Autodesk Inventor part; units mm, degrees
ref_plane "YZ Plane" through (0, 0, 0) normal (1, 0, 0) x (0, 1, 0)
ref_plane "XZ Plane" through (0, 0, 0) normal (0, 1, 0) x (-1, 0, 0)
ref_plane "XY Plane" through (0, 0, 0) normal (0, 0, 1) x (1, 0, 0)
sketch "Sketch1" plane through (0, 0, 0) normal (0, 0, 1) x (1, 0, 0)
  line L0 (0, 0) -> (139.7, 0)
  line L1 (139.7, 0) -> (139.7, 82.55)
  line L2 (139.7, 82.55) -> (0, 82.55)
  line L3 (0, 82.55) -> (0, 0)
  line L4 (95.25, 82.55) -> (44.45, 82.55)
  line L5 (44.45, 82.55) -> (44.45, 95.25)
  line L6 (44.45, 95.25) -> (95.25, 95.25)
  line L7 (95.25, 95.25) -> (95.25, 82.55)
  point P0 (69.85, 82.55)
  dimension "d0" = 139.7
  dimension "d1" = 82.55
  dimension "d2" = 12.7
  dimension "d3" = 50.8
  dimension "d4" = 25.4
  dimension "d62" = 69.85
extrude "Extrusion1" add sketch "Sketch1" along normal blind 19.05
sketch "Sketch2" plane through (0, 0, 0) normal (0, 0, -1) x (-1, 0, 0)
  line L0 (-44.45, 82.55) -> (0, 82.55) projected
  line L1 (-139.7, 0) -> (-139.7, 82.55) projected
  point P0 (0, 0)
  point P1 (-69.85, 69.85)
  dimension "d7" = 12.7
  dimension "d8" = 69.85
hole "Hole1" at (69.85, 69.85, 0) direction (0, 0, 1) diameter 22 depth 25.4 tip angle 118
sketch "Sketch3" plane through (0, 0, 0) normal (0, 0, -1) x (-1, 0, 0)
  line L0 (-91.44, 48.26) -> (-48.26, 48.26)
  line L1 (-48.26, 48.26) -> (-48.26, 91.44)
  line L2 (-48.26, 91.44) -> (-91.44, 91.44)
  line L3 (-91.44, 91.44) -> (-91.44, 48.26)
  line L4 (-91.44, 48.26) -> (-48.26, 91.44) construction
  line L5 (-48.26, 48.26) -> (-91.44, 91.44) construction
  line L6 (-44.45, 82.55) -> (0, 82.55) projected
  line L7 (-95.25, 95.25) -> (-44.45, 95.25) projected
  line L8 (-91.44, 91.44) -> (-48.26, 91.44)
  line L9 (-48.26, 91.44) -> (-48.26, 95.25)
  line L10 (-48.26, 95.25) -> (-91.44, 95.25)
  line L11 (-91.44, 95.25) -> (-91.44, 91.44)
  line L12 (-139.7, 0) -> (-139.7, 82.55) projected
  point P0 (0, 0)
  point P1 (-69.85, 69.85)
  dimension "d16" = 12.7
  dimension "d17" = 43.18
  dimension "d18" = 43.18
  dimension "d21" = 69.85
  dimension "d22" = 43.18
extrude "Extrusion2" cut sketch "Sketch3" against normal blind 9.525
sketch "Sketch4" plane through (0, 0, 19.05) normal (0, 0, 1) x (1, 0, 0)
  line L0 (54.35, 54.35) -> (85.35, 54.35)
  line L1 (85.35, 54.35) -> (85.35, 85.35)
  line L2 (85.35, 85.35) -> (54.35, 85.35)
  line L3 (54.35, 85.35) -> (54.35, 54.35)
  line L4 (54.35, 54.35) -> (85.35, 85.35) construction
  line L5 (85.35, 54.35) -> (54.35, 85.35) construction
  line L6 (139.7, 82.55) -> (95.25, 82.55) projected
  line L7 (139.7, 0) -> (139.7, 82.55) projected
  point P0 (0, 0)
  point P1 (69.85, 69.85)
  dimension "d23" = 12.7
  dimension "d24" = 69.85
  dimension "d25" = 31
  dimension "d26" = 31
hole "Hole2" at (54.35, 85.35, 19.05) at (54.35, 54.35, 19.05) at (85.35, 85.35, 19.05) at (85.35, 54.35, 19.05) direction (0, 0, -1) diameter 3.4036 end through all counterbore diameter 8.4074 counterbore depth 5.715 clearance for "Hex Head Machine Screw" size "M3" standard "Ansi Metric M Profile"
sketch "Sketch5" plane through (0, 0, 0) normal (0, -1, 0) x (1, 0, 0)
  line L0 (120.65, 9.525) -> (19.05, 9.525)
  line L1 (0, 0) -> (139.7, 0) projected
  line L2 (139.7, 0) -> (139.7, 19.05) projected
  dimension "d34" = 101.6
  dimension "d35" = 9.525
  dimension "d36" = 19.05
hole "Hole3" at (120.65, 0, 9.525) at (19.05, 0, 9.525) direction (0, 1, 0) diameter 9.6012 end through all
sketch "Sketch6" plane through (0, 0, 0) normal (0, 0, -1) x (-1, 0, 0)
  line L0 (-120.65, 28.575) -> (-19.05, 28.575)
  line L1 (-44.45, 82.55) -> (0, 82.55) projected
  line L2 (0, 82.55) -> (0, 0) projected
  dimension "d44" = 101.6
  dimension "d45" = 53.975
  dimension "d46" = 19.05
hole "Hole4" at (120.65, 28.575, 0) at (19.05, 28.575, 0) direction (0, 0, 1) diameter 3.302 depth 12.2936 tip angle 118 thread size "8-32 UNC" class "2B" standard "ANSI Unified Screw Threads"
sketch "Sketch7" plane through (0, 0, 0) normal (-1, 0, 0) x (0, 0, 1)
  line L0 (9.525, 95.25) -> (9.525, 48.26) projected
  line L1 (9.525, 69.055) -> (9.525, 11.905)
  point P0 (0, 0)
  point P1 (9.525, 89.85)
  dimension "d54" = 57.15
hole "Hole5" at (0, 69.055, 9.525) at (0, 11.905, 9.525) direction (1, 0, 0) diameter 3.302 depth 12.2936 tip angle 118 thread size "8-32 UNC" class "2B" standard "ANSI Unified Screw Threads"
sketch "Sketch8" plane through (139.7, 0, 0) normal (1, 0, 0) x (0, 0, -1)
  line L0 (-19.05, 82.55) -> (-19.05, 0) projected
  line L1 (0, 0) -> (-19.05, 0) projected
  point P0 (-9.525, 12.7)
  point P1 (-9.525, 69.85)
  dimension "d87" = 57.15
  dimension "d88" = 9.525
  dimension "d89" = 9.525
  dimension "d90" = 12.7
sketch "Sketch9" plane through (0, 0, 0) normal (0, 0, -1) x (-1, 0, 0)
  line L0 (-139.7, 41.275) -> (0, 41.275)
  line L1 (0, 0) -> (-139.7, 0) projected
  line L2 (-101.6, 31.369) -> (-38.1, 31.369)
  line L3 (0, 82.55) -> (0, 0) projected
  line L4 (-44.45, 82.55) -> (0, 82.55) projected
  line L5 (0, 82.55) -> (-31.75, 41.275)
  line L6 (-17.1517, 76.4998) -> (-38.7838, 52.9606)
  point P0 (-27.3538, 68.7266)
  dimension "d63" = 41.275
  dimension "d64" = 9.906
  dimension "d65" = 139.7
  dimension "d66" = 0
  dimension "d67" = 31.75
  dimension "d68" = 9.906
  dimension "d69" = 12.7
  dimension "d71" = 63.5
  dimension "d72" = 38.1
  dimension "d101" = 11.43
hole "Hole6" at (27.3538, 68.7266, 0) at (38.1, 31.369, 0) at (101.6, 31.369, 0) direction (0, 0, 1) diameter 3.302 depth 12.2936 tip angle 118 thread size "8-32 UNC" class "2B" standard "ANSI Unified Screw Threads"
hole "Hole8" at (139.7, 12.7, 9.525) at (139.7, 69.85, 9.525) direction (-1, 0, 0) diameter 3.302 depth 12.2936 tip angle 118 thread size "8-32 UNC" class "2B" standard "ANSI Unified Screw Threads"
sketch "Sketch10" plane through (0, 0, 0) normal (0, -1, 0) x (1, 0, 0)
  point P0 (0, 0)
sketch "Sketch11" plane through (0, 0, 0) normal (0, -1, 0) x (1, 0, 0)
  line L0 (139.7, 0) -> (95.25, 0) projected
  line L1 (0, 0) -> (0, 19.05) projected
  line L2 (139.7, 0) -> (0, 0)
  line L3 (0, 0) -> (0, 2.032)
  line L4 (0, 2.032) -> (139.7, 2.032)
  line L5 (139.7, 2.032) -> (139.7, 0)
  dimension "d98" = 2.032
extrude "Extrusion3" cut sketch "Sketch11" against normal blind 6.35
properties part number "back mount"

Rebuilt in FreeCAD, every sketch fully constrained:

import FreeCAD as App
import Part
import Sketcher

V = App.Vector
Q = App.Units.Quantity


def add_polygon(sketch, points):
    """Adds a closed chain of lines whose ends are joined by coincident constraints."""
    first, n = sketch.GeometryCount, len(points)
    for a, b in zip(points, points[1:] + points[:1]):
        sketch.addGeometry(Part.LineSegment(App.Vector(*a, 0), App.Vector(*b, 0)), False)
    for i in range(n):
        sketch.addConstraint(Sketcher.Constraint("Coincident", first + i, 2, first + (i + 1) % n, 1))

doc = App.newDocument("Part")
body = doc.addObject("PartDesign::Body", "Body")

# Sketch on XY plane
sketch1 = body.newObject("Sketcher::SketchObject", "Sketch")
sketch1.AttachmentSupport = (doc.getObject("XY_Plane"), [""])
sketch1.MapMode = "FlatFace"
add_polygon(sketch1, [(0, 82.55), (0, 0), (139.7, 0), (139.7, 82.55), (95.25, 82.55), (95.25, 95.25), (44.45, 95.25), (44.45, 82.55)])  # lines 0-7
sketch1.addConstraint([
    Sketcher.Constraint("Vertical", 0),
    Sketcher.Constraint("Horizontal", 1),
    Sketcher.Constraint("Vertical", 2),
    Sketcher.Constraint("Horizontal", 3),
    Sketcher.Constraint("Vertical", 4),
    Sketcher.Constraint("Horizontal", 5),
    Sketcher.Constraint("Vertical", 6),
    Sketcher.Constraint("Horizontal", 7),
    Sketcher.Constraint("Coincident", 0, 2, -1, 1),
    Sketcher.Constraint("Horizontal", 3, 2, 6, 2),
    Sketcher.Constraint("Equal", 3, 7),
    Sketcher.Constraint("DistanceX", 5, 2, 5, 1, Q("2 in")),
    Sketcher.Constraint("DistanceX", 1, 1, 1, 2, Q("5.5 in")),
    Sketcher.Constraint("DistanceY", 4, 1, 4, 2, Q("0.5 in")),
    Sketcher.Constraint("DistanceY", 0, 2, 0, 1, Q("3.25 in")),
])
pad1 = body.newObject("PartDesign::Pad", "Pad")
pad1.Profile = sketch1
pad1.Length = Q("0.75 in")

# Sketch on XY plane
sketch2 = body.newObject("Sketcher::SketchObject", "Sketch001")
sketch2.AttachmentSupport = (doc.getObject("XY_Plane"), [""])
sketch2.MapMode = "FlatFace"
sketch2.addGeometry(Part.Circle(V(69.85, 69.85, 0), V(0, 0, 1), 11), False)
sketch2.addConstraint([
    Sketcher.Constraint("Diameter", 0, Q("22 mm")),
    Sketcher.Constraint("DistanceX", -1, 1, 0, 3, Q("2.75 in")),
    Sketcher.Constraint("DistanceY", -1, 1, 0, 3, Q("2.75 in")),
])
doc.recompute()
hole = body.newObject("PartDesign::Hole", "Hole")
hole.Profile = sketch2
hole.ThreadType = "None"
hole.Diameter = 22
hole.DepthType = "Dimension"
hole.Depth = Q("1 in")
hole.DrillPoint = "Angled"
hole.DrillPointAngle = 118
hole.Reversed = True

# Sketch on XY plane
sketch3 = body.newObject("Sketcher::SketchObject", "Sketch002")
sketch3.AttachmentSupport = (doc.getObject("XY_Plane"), [""])
sketch3.MapMode = "FlatFace"
add_polygon(sketch3, [(91.44, 48.26), (48.26, 48.26), (48.26, 95.25), (91.44, 95.25)])  # lines 0-3
sketch3.addConstraint([
    Sketcher.Constraint("Horizontal", 0),
    Sketcher.Constraint("Vertical", 1),
    Sketcher.Constraint("Horizontal", 2),
    Sketcher.Constraint("Vertical", 3),
    Sketcher.Constraint("DistanceX", 0, 2, 0, 1, Q("1.7 in")),
    Sketcher.Constraint("DistanceY", 1, 1, 1, 2, Q("1.85 in")),
    Sketcher.Constraint("DistanceX", -1, 1, 0, 2, Q("1.9 in")),
    Sketcher.Constraint("DistanceY", -1, 1, 0, 2, Q("1.9 in")),
])
pocket1 = body.newObject("PartDesign::Pocket", "Pocket")
pocket1.Profile = sketch3
pocket1.Length = Q("0.375 in")
pocket1.Reversed = True

# Sketch on XY plane
sketch4 = body.newObject("Sketcher::SketchObject", "Sketch003")
sketch4.AttachmentSupport = (doc.getObject("XY_Plane"), [""])
sketch4.MapMode = "FlatFace"
sketch4.AttachmentOffset = App.Placement(V(0, 0, 0.75 * 25.4), App.Rotation())
sketch4.addGeometry([
    Part.Circle(V(54.35, 85.35, 0), V(0, 0, 1), 1.7018),
    Part.Circle(V(54.35, 54.35, 0), V(0, 0, 1), 1.7018),
    Part.Circle(V(85.35, 85.35, 0), V(0, 0, 1), 1.7018),
    Part.Circle(V(85.35, 54.35, 0), V(0, 0, 1), 1.7018),
], False)
sketch4.addConstraint([
    Sketcher.Constraint("Equal", 0, 1),
    Sketcher.Constraint("Equal", 1, 2),
    Sketcher.Constraint("Equal", 2, 3),
    Sketcher.Constraint("Horizontal", 0, 3, 2, 3),
    Sketcher.Constraint("Horizontal", 1, 3, 3, 3),
    Sketcher.Constraint("Vertical", 0, 3, 1, 3),
    Sketcher.Constraint("Vertical", 2, 3, 3, 3),
    Sketcher.Constraint("Diameter", 0, Q("0.134 in")),
    Sketcher.Constraint("DistanceX", -1, 1, 0, 3, Q("54.35 mm")),
    Sketcher.Constraint("DistanceY", -1, 1, 0, 3, Q("85.35 mm")),
    Sketcher.Constraint("DistanceY", -1, 1, 1, 3, Q("54.35 mm")),
    Sketcher.Constraint("DistanceX", -1, 1, 2, 3, Q("85.35 mm")),
])
doc.recompute()
hole2 = body.newObject("PartDesign::Hole", "Hole001")
hole2.Profile = sketch4
hole2.ThreadType = "None"
hole2.Diameter = Q("0.134 in")
hole2.DepthType = "ThroughAll"
hole2.HoleCutType = "Counterbore"
hole2.HoleCutDiameter = Q("0.331 in")
hole2.HoleCutDepth = Q("0.225 in")

# Sketch on XZ plane
sketch5 = body.newObject("Sketcher::SketchObject", "Sketch004")
sketch5.AttachmentSupport = (doc.getObject("XZ_Plane"), [""])
sketch5.MapMode = "FlatFace"
sketch5.addGeometry([
    Part.Circle(V(120.65, 9.525, 0), V(0, 0, 1), 4.8006),
    Part.Circle(V(19.05, 9.525, 0), V(0, 0, 1), 4.8006),
], False)
sketch5.addConstraint([
    Sketcher.Constraint("Equal", 0, 1),
    Sketcher.Constraint("Horizontal", 0, 3, 1, 3),
    Sketcher.Constraint("Diameter", 0, Q("0.378 in")),
    Sketcher.Constraint("DistanceX", 1, 3, 0, 3, Q("4 in")),
    Sketcher.Constraint("DistanceX", -1, 1, 0, 3, Q("4.75 in")),
    Sketcher.Constraint("DistanceY", -1, 1, 0, 3, Q("0.375 in")),
])
doc.recompute()
hole3 = body.newObject("PartDesign::Hole", "Hole002")
hole3.Profile = sketch5
hole3.ThreadType = "None"
hole3.Diameter = Q("0.378 in")
hole3.DepthType = "ThroughAll"

# Sketch on XY plane
sketch6 = body.newObject("Sketcher::SketchObject", "Sketch005")
sketch6.AttachmentSupport = (doc.getObject("XY_Plane"), [""])
sketch6.MapMode = "FlatFace"
sketch6.addGeometry([
    Part.Circle(V(120.65, 28.575, 0), V(0, 0, 1), 1.651),
    Part.Circle(V(19.05, 28.575, 0), V(0, 0, 1), 1.651),
], False)
sketch6.addConstraint([
    Sketcher.Constraint("Equal", 0, 1),
    Sketcher.Constraint("Horizontal", 0, 3, 1, 3),
    Sketcher.Constraint("Diameter", 0, Q("0.13 in")),
    Sketcher.Constraint("DistanceX", 1, 3, 0, 3, Q("4 in")),
    Sketcher.Constraint("DistanceX", -1, 1, 0, 3, Q("4.75 in")),
    Sketcher.Constraint("DistanceY", -1, 1, 0, 3, Q("1.125 in")),
])
doc.recompute()
hole4 = body.newObject("PartDesign::Hole", "Hole003")
hole4.Profile = sketch6
hole4.ThreadType = "None"
hole4.Diameter = Q("0.13 in")
hole4.DepthType = "Dimension"
hole4.Depth = Q("0.484 in")
hole4.DrillPoint = "Angled"
hole4.DrillPointAngle = 118
hole4.Reversed = True

# Sketch on YZ plane
sketch7 = body.newObject("Sketcher::SketchObject", "Sketch006")
sketch7.AttachmentSupport = (doc.getObject("YZ_Plane"), [""])
sketch7.MapMode = "FlatFace"
sketch7.addGeometry([
    Part.Circle(V(69.055, 9.525, 0), V(0, 0, 1), 1.651),
    Part.Circle(V(11.905, 9.525, 0), V(0, 0, 1), 1.651),
], False)
sketch7.addConstraint([
    Sketcher.Constraint("Equal", 0, 1),
    Sketcher.Constraint("Horizontal", 0, 3, 1, 3),
    Sketcher.Constraint("Diameter", 0, Q("0.13 in")),
    Sketcher.Constraint("DistanceX", 1, 3, 0, 3, Q("2.25 in")),
    Sketcher.Constraint("DistanceY", -1, 1, 0, 3, Q("0.375 in")),
    Sketcher.Constraint("DistanceX", -1, 1, 0, 3, Q("2.7187 in")),
])
doc.recompute()
hole5 = body.newObject("PartDesign::Hole", "Hole004")
hole5.Profile = sketch7
hole5.ThreadType = "None"
hole5.Diameter = Q("0.13 in")
hole5.DepthType = "Dimension"
hole5.Depth = Q("0.484 in")
hole5.DrillPoint = "Angled"
hole5.DrillPointAngle = 118
hole5.Reversed = True

# Sketch on XY plane
sketch8 = body.newObject("Sketcher::SketchObject", "Sketch007")
sketch8.AttachmentSupport = (doc.getObject("XY_Plane"), [""])
sketch8.MapMode = "FlatFace"
sketch8.addGeometry([
    Part.Circle(V(27.3538, 68.7266, 0), V(0, 0, 1), 1.651),
    Part.Circle(V(38.1, 31.369, 0), V(0, 0, 1), 1.651),
    Part.Circle(V(101.6, 31.369, 0), V(0, 0, 1), 1.651),
], False)
sketch8.addConstraint([
    Sketcher.Constraint("Equal", 0, 1),
    Sketcher.Constraint("Equal", 1, 2),
    Sketcher.Constraint("Horizontal", 1, 3, 2, 3),
    Sketcher.Constraint("Diameter", 0, Q("0.13 in")),
    Sketcher.Constraint("DistanceX", -1, 1, 2, 3, Q("4 in")),
    Sketcher.Constraint("DistanceX", -1, 1, 1, 3, Q("1.5 in")),
    Sketcher.Constraint("DistanceY", -1, 1, 1, 3, Q("1.235 in")),
    Sketcher.Constraint("DistanceX", -1, 1, 0, 3, Q("27.3538 mm")),
    Sketcher.Constraint("DistanceY", -1, 1, 0, 3, Q("68.7266 mm")),
])
doc.recompute()
hole6 = body.newObject("PartDesign::Hole", "Hole005")
hole6.Profile = sketch8
hole6.ThreadType = "None"
hole6.Diameter = Q("0.13 in")
hole6.DepthType = "Dimension"
hole6.Depth = Q("0.484 in")
hole6.DrillPoint = "Angled"
hole6.DrillPointAngle = 118
hole6.Reversed = True

# Sketch on YZ plane
sketch9 = body.newObject("Sketcher::SketchObject", "Sketch008")
sketch9.AttachmentSupport = (doc.getObject("YZ_Plane"), [""])
sketch9.MapMode = "FlatFace"
sketch9.AttachmentOffset = App.Placement(V(0, 0, 5.5 * 25.4), App.Rotation())
sketch9.addGeometry([
    Part.Circle(V(12.7, 9.525, 0), V(0, 0, 1), 1.651),
    Part.Circle(V(69.85, 9.525, 0), V(0, 0, 1), 1.651),
], False)
sketch9.addConstraint([
    Sketcher.Constraint("Equal", 0, 1),
    Sketcher.Constraint("Horizontal", 0, 3, 1, 3),
    Sketcher.Constraint("Diameter", 0, Q("0.13 in")),
    Sketcher.Constraint("DistanceX", -1, 1, 0, 3, Q("0.5 in")),
    Sketcher.Constraint("DistanceX", -1, 1, 1, 3, Q("2.75 in")),
    Sketcher.Constraint("DistanceY", -1, 1, 0, 3, Q("0.375 in")),
])
doc.recompute()
hole7 = body.newObject("PartDesign::Hole", "Hole006")
hole7.Profile = sketch9
hole7.ThreadType = "None"
hole7.Diameter = Q("0.13 in")
hole7.DepthType = "Dimension"
hole7.Depth = Q("0.484 in")
hole7.DrillPoint = "Angled"
hole7.DrillPointAngle = 118

# Sketch on XZ plane
sketch10 = body.newObject("Sketcher::SketchObject", "Sketch009")
sketch10.AttachmentSupport = (doc.getObject("XZ_Plane"), [""])
sketch10.MapMode = "FlatFace"
add_polygon(sketch10, [(0, 0), (139.7, 0), (139.7, 2.032), (0, 2.032)])  # lines 0-3
sketch10.addConstraint([
    Sketcher.Constraint("Horizontal", 0),
    Sketcher.Constraint("Vertical", 1),
    Sketcher.Constraint("Horizontal", 2),
    Sketcher.Constraint("Vertical", 3),
    Sketcher.Constraint("Coincident", 3, 2, -1, 1),
    Sketcher.Constraint("DistanceY", 1, 1, 1, 2, Q("0.08 in")),
    Sketcher.Constraint("DistanceX", 0, 1, 0, 2, Q("5.5 in")),
])
pocket2 = body.newObject("PartDesign::Pocket", "Pocket001")
pocket2.Profile = sketch10
pocket2.Length = Q("0.25 in")

doc.recompute()
